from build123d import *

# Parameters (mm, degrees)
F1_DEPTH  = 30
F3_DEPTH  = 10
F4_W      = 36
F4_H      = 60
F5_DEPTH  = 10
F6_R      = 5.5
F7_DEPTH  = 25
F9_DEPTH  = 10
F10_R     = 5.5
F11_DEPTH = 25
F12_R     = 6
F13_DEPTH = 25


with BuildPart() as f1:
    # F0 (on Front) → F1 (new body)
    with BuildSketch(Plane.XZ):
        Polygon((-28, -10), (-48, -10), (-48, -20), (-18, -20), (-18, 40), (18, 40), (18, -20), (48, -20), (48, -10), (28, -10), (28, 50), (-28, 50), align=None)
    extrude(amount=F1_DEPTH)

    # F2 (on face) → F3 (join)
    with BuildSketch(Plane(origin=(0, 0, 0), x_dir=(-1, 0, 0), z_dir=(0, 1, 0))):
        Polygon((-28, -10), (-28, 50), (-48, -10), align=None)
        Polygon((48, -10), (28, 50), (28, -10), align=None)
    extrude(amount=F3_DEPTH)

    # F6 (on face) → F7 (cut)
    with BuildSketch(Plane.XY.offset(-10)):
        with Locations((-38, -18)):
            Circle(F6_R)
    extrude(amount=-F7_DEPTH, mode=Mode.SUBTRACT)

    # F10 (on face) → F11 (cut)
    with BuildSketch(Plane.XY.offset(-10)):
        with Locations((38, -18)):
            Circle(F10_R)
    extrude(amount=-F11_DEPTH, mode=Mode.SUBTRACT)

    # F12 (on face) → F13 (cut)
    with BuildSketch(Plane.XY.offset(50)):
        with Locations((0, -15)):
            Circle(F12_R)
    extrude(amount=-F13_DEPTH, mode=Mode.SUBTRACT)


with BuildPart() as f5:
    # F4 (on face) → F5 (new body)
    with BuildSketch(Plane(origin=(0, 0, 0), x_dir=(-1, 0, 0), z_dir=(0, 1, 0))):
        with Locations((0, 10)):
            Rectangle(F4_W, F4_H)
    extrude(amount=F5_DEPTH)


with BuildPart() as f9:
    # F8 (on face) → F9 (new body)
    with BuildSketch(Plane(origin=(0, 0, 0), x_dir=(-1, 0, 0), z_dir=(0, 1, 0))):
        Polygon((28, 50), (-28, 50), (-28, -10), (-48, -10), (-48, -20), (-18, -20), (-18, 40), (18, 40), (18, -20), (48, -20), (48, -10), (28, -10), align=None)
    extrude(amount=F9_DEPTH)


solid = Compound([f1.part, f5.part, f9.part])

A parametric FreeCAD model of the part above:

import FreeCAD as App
import Part
import Sketcher
Q = App.Units.Quantity


def add_polygon(sketch, points):
    """Adds a closed chain of lines whose ends are joined by coincident constraints."""
    first, n = sketch.GeometryCount, len(points)
    for a, b in zip(points, points[1:] + points[:1]):
        sketch.addGeometry(Part.LineSegment(App.Vector(*a, 0), App.Vector(*b, 0)), False)
    for i in range(n):
        sketch.addConstraint(Sketcher.Constraint("Coincident", first + i, 2, first + (i + 1) % n, 1))

doc = App.newDocument("Part")
body = doc.addObject("PartDesign::Body", "Body")
body.AllowCompound = True

# Sketch on XZ plane
sketch1 = body.newObject("Sketcher::SketchObject", "Sketch")
sketch1.AttachmentSupport = (doc.getObject("XZ_Plane"), [""])
sketch1.MapMode = "FlatFace"
add_polygon(sketch1, [(-28, -10), (-48, -10), (-48, -20), (-18, -20), (-18, 40), (18, 40), (18, -20), (48, -20), (48, -10), (28, -10), (28, 50), (-28, 50)])  # lines 0-11
sketch1.addConstraint([
    Sketcher.Constraint("Horizontal", 0),
    Sketcher.Constraint("Vertical", 1),
    Sketcher.Constraint("Horizontal", 2),
    Sketcher.Constraint("Vertical", 3),
    Sketcher.Constraint("Horizontal", 4),
    Sketcher.Constraint("Vertical", 5),
    Sketcher.Constraint("Horizontal", 6),
    Sketcher.Constraint("Vertical", 7),
    Sketcher.Constraint("Horizontal", 8),
    Sketcher.Constraint("Vertical", 9),
    Sketcher.Constraint("Horizontal", 10),
    Sketcher.Constraint("Vertical", 11),
    Sketcher.Constraint("Symmetric", 2, 2, 5, 2, -2),
    Sketcher.Constraint("Symmetric", 0, 2, 7, 2, -2),
    Sketcher.Constraint("Equal", 0, 8),
    Sketcher.Constraint("Equal", 5, 9),
    Sketcher.Constraint("DistanceX", 0, 2, 0, 1, Q("20 mm")),
    Sketcher.Constraint("DistanceX", 2, 1, 2, 2, Q("30 mm")),
    Sketcher.Constraint("DistanceX", 4, 1, 4, 2, Q("36 mm")),
    Sketcher.Constraint("DistanceY", 1, 2, 1, 1, Q("10 mm")),
    Sketcher.Constraint("DistanceY", 3, 1, 3, 2, Q("60 mm")),
    Sketcher.Constraint("DistanceY", 0, 2, -1, 1, Q("10 mm")),
])
pad1 = body.newObject("PartDesign::Pad", "Pad")
pad1.Profile = sketch1
pad1.Length = 30

# Sketch on XZ plane
sketch2 = body.newObject("Sketcher::SketchObject", "Sketch001")
sketch2.AttachmentSupport = (doc.getObject("XZ_Plane"), [""])
sketch2.MapMode = "FlatFace"
add_polygon(sketch2, [(28, -10), (28, 50), (48, -10)])  # lines 0-2
add_polygon(sketch2, [(-48, -10), (-28, 50), (-28, -10)])  # lines 3-5
sketch2.addConstraint([
    Sketcher.Constraint("Vertical", 0),
    Sketcher.Constraint("Horizontal", 2),
    Sketcher.Constraint("Vertical", 4),
    Sketcher.Constraint("Horizontal", 5),
    Sketcher.Constraint("Symmetric", 0, 2, 3, 2, -2),
    Sketcher.Constraint("Symmetric", 1, 2, 5, 2, -2),
    Sketcher.Constraint("DistanceX", 2, 2, 2, 1, Q("20 mm")),
    Sketcher.Constraint("DistanceY", 0, 1, 0, 2, Q("60 mm")),
    Sketcher.Constraint("DistanceX", -1, 1, 0, 2, Q("28 mm")),
    Sketcher.Constraint("DistanceY", -1, 1, 0, 2, Q("50 mm")),
])
pad2 = body.newObject("PartDesign::Pad", "Pad001")
pad2.Profile = sketch2
pad2.Length = 10
pad2.Reversed = True

# Sketch on XY plane
sketch3 = body.newObject("Sketcher::SketchObject", "Sketch002")
sketch3.AttachmentSupport = (doc.getObject("XY_Plane"), [""])
sketch3.MapMode = "FlatFace"
sketch3.AttachmentOffset = App.Placement(App.Vector(0, 0, -10), App.Rotation())
sketch3.addGeometry(Part.Circle(App.Vector(-38, -18, 0), App.Vector(0, 0, 1), 6), False)
sketch3.addConstraint([
    Sketcher.Constraint("Diameter", 0, Q("11 mm")),
    Sketcher.Constraint("DistanceX", 0, 3, -1, 1, Q("38 mm")),
    Sketcher.Constraint("DistanceY", 0, 3, -1, 1, Q("18 mm")),
])
pocket1 = body.newObject("PartDesign::Pocket", "Pocket")
pocket1.Profile = sketch3
pocket1.Length = 25

# Sketch on XY plane
sketch4 = body.newObject("Sketcher::SketchObject", "Sketch003")
sketch4.AttachmentSupport = (doc.getObject("XY_Plane"), [""])
sketch4.MapMode = "FlatFace"
sketch4.AttachmentOffset = App.Placement(App.Vector(0, 0, -10), App.Rotation())
sketch4.addGeometry(Part.Circle(App.Vector(38, -18, 0), App.Vector(0, 0, 1), 6), False)
sketch4.addConstraint([
    Sketcher.Constraint("Diameter", 0, Q("11 mm")),
    Sketcher.Constraint("DistanceX", -1, 1, 0, 3, Q("38 mm")),
    Sketcher.Constraint("DistanceY", 0, 3, -1, 1, Q("18 mm")),
])
pocket2 = body.newObject("PartDesign::Pocket", "Pocket001")
pocket2.Profile = sketch4
pocket2.Length = 25

# Sketch on XY plane
sketch5 = body.newObject("Sketcher::SketchObject", "Sketch004")
sketch5.AttachmentSupport = (doc.getObject("XY_Plane"), [""])
sketch5.MapMode = "FlatFace"
sketch5.AttachmentOffset = App.Placement(App.Vector(0, 0, 50), App.Rotation())
sketch5.addGeometry(Part.Circle(App.Vector(0, -15, 0), App.Vector(0, 0, 1), 6), False)
sketch5.addConstraint([
    Sketcher.Constraint("PointOnObject", 0, 3, -2),
    Sketcher.Constraint("Diameter", 0, Q("12 mm")),
    Sketcher.Constraint("DistanceY", 0, 3, -1, 1, Q("15 mm")),
])
pocket3 = body.newObject("PartDesign::Pocket", "Pocket002")
pocket3.Profile = sketch5
pocket3.Length = 25
body2 = doc.addObject("PartDesign::Body", "Body001")

# Sketch on XZ plane
sketch6 = body2.newObject("Sketcher::SketchObject", "Sketch005")
sketch6.AttachmentSupport = (doc.getObject("XZ_Plane001"), [""])
sketch6.MapMode = "FlatFace"
add_polygon(sketch6, [(18, 40), (18, -20), (-18, -20), (-18, 40)])  # lines 0-3
sketch6.addConstraint([
    Sketcher.Constraint("Vertical", 0),
    Sketcher.Constraint("Horizontal", 1),
    Sketcher.Constraint("Vertical", 2),
    Sketcher.Constraint("Horizontal", 3),
    Sketcher.Constraint("DistanceX", 1, 2, 1, 1, Q("36 mm")),
    Sketcher.Constraint("DistanceY", 0, 2, 0, 1, Q("60 mm")),
    Sketcher.Constraint("DistanceX", -1, 1, 0, 2, Q("18 mm")),
    Sketcher.Constraint("DistanceY", 0, 2, -1, 1, Q("20 mm")),
])
pad3 = body2.newObject("PartDesign::Pad", "Pad002")
pad3.Profile = sketch6
pad3.Length = 10
pad3.Reversed = True
body3 = doc.addObject("PartDesign::Body", "Body002")

# Sketch on XZ plane
sketch7 = body3.newObject("Sketcher::SketchObject", "Sketch006")
sketch7.AttachmentSupport = (doc.getObject("XZ_Plane002"), [""])
sketch7.MapMode = "FlatFace"
add_polygon(sketch7, [(-28, 50), (28, 50), (28, -10), (48, -10), (48, -20), (18, -20), (18, 40), (-18, 40), (-18, -20), (-48, -20), (-48, -10), (-28, -10)])  # lines 0-11
sketch7.addConstraint([
    Sketcher.Constraint("Horizontal", 0),
    Sketcher.Constraint("Vertical", 1),
    Sketcher.Constraint("Horizontal", 2),
    Sketcher.Constraint("Vertical", 3),
    Sketcher.Constraint("Horizontal", 4),
    Sketcher.Constraint("Vertical", 5),
    Sketcher.Constraint("Horizontal", 6),
    Sketcher.Constraint("Vertical", 7),
    Sketcher.Constraint("Horizontal", 8),
    Sketcher.Constraint("Vertical", 9),
    Sketcher.Constraint("Horizontal", 10),
    Sketcher.Constraint("Vertical", 11),
    Sketcher.Constraint("Symmetric", 4, 2, 7, 2, -2),
    Sketcher.Constraint("Symmetric", 2, 2, 9, 2, -2),
    Sketcher.Constraint("Equal", 2, 10),
    Sketcher.Constraint("Equal", 1, 5),
    Sketcher.Constraint("DistanceX", 0, 1, 0, 2, Q("56 mm")),
    Sketcher.Constraint("DistanceX", 2, 1, 2, 2, Q("20 mm")),
    Sketcher.Constraint("DistanceX", 4, 2, 4, 1, Q("30 mm")),
    Sketcher.Constraint("DistanceY", 1, 2, 1, 1, Q("60 mm")),
    Sketcher.Constraint("DistanceY", 3, 2, 3, 1, Q("10 mm")),
    Sketcher.Constraint("DistanceY", -1, 1, 0, 2, Q("50 mm")),
])
pad4 = body3.newObject("PartDesign::Pad", "Pad003")
pad4.Profile = sketch7
pad4.Length = 10
pad4.Reversed = True

doc.recompute()
